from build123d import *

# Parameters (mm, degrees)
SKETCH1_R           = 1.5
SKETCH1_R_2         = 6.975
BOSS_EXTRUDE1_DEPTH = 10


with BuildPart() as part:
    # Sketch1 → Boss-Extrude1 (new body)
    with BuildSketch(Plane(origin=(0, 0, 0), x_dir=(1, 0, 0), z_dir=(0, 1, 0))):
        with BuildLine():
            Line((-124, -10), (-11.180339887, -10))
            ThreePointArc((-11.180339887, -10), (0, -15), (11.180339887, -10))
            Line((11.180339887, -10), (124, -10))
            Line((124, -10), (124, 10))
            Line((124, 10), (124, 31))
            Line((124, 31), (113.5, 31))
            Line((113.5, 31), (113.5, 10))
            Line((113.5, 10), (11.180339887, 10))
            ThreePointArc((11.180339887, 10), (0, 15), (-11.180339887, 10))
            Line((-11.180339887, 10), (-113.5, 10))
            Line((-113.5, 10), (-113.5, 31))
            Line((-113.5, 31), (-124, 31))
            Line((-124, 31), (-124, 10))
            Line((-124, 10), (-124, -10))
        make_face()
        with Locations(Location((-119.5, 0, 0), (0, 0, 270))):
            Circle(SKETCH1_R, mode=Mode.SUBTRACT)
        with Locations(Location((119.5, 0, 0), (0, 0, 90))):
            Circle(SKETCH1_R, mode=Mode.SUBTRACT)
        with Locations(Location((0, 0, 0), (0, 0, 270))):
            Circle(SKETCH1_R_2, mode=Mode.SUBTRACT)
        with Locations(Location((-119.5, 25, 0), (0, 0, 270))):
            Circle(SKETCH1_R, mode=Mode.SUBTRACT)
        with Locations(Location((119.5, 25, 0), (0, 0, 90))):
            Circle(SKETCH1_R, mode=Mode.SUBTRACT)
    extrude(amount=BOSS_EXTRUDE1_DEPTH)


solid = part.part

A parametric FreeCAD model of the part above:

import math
import FreeCAD as App
import Part
import Sketcher
from FreeCAD import Vector

doc = App.newDocument("Part")
body = doc.addObject("PartDesign::Body", "Body")

# Sketch on XZ plane
sketch1 = body.newObject("Sketcher::SketchObject", "Sketch")
sketch1.AttachmentSupport = (doc.getObject("XZ_Plane"), [""])
sketch1.MapMode = "FlatFace"
sketch1.addGeometry([
    Part.LineSegment(Vector(-124, 10, 0), Vector(-11.2, 10, 0)),  # 0
    Part.ArcOfCircle(Part.Circle(Vector(0, 0, 0), Vector(0, 0, 1), 15), math.radians(42), math.radians(138)),  # 1
    Part.LineSegment(Vector(11.2, 10, 0), Vector(124, 10, 0)),  # 2
    Part.LineSegment(Vector(124, 10, 0), Vector(124, -31, 0)),  # 3
    Part.LineSegment(Vector(124, -31, 0), Vector(113.5, -31, 0)),  # 4
    Part.LineSegment(Vector(113.5, -31, 0), Vector(113.5, -10, 0)),  # 5
    Part.LineSegment(Vector(113.5, -10, 0), Vector(11.2, -10, 0)),  # 6
    Part.ArcOfCircle(Part.Circle(Vector(0, 0, 0), Vector(0, 0, 1), 15), math.radians(-138), math.radians(-42)),  # 7
    Part.LineSegment(Vector(-11.2, -10, 0), Vector(-113.5, -10, 0)),  # 8
    Part.LineSegment(Vector(-113.5, -10, 0), Vector(-113.5, -31, 0)),  # 9
    Part.LineSegment(Vector(-113.5, -31, 0), Vector(-124, -31, 0)),  # 10
    Part.LineSegment(Vector(-124, -31, 0), Vector(-124, 10, 0)),  # 11
    Part.Circle(Vector(-119.5, 0, 0), Vector(0, 0, 1), 1.5),  # 12
    Part.Circle(Vector(0, 0, 0), Vector(0, 0, 1), 7),  # 13
    Part.Circle(Vector(119.5, 0, 0), Vector(0, 0, 1), 1.5),  # 14
    Part.Circle(Vector(-119.5, -25, 0), Vector(0, 0, 1), 1.5),  # 15
    Part.Circle(Vector(119.5, -25, 0), Vector(0, 0, 1), 1.5),  # 16
], False)
sketch1.addConstraint([
    Sketcher.Constraint("Coincident", 0, 2, 1, 2),
    Sketcher.Constraint("Coincident", 1, 1, 2, 1),
    Sketcher.Constraint("Coincident", 2, 2, 3, 1),
    Sketcher.Constraint("Coincident", 3, 2, 4, 1),
    Sketcher.Constraint("Coincident", 4, 2, 5, 1),
    Sketcher.Constraint("Coincident", 5, 2, 6, 1),
    Sketcher.Constraint("Coincident", 6, 2, 7, 2),
    Sketcher.Constraint("Coincident", 7, 1, 8, 1),
    Sketcher.Constraint("Coincident", 8, 2, 9, 1),
    Sketcher.Constraint("Coincident", 9, 2, 10, 1),
    Sketcher.Constraint("Coincident", 10, 2, 11, 1),
    Sketcher.Constraint("Coincident", 11, 2, 0, 1),
    Sketcher.Constraint("Horizontal", 0),
    Sketcher.Constraint("Horizontal", 2),
    Sketcher.Constraint("Vertical", 3),
    Sketcher.Constraint("Horizontal", 4),
    Sketcher.Constraint("Vertical", 5),
    Sketcher.Constraint("Horizontal", 6),
    Sketcher.Constraint("Horizontal", 8),
    Sketcher.Constraint("Vertical", 9),
    Sketcher.Constraint("Horizontal", 10),
    Sketcher.Constraint("Vertical", 11),
    Sketcher.Constraint("Coincident", 1, 3, -1, 1),
    Sketcher.Constraint("Coincident", 7, 3, -1, 1),
    Sketcher.Constraint("Coincident", 13, 3, -1, 1),
    Sketcher.Constraint("Equal", 1, 7),
    Sketcher.Constraint("Equal", 12, 14),
    Sketcher.Constraint("Equal", 14, 15),
    Sketcher.Constraint("Equal", 15, 16),
    Sketcher.Constraint("Symmetric", 12, 3, 14, 3, -1, 1),
    Sketcher.Constraint("Symmetric", 15, 3, 16, 3, -2),
    Sketcher.Constraint("Symmetric", 5, 2, 8, 2, -2),
    Sketcher.Constraint("Symmetric", 3, 2, 10, 2, -2),
    Sketcher.Constraint("PointOnObject", 12, 3, -1),
    Sketcher.Constraint("Horizontal", 0, 2, 1, 1),
    Sketcher.Constraint("Vertical", 12, 3, 15, 3),
    Sketcher.Constraint("Vertical", 1, 1, 6, 2),
    Sketcher.Constraint("Diameter", 12, 3.0),
    Sketcher.Constraint("Radius", 1, 15.0),
    Sketcher.Constraint("Diameter", 13, 13.95),
    Sketcher.Constraint("DistanceY", 3, 2, 3, 1, 41.0),
    Sketcher.Constraint("DistanceY", 5, 1, 5, 2, 21.0),
    Sketcher.Constraint("DistanceX", 4, 2, 4, 1, 10.5),
    Sketcher.Constraint("DistanceY", 15, 3, -1, 1, 25.0),
    Sketcher.Constraint("DistanceX", -1, 1, 2, 2, 124.0),
    Sketcher.Constraint("DistanceX", 12, 3, 14, 3, 239.0),
])
pad1 = body.newObject("PartDesign::Pad", "Pad")
pad1.Profile = sketch1
pad1.Length = 10
pad1.Reversed = True

doc.recompute()
